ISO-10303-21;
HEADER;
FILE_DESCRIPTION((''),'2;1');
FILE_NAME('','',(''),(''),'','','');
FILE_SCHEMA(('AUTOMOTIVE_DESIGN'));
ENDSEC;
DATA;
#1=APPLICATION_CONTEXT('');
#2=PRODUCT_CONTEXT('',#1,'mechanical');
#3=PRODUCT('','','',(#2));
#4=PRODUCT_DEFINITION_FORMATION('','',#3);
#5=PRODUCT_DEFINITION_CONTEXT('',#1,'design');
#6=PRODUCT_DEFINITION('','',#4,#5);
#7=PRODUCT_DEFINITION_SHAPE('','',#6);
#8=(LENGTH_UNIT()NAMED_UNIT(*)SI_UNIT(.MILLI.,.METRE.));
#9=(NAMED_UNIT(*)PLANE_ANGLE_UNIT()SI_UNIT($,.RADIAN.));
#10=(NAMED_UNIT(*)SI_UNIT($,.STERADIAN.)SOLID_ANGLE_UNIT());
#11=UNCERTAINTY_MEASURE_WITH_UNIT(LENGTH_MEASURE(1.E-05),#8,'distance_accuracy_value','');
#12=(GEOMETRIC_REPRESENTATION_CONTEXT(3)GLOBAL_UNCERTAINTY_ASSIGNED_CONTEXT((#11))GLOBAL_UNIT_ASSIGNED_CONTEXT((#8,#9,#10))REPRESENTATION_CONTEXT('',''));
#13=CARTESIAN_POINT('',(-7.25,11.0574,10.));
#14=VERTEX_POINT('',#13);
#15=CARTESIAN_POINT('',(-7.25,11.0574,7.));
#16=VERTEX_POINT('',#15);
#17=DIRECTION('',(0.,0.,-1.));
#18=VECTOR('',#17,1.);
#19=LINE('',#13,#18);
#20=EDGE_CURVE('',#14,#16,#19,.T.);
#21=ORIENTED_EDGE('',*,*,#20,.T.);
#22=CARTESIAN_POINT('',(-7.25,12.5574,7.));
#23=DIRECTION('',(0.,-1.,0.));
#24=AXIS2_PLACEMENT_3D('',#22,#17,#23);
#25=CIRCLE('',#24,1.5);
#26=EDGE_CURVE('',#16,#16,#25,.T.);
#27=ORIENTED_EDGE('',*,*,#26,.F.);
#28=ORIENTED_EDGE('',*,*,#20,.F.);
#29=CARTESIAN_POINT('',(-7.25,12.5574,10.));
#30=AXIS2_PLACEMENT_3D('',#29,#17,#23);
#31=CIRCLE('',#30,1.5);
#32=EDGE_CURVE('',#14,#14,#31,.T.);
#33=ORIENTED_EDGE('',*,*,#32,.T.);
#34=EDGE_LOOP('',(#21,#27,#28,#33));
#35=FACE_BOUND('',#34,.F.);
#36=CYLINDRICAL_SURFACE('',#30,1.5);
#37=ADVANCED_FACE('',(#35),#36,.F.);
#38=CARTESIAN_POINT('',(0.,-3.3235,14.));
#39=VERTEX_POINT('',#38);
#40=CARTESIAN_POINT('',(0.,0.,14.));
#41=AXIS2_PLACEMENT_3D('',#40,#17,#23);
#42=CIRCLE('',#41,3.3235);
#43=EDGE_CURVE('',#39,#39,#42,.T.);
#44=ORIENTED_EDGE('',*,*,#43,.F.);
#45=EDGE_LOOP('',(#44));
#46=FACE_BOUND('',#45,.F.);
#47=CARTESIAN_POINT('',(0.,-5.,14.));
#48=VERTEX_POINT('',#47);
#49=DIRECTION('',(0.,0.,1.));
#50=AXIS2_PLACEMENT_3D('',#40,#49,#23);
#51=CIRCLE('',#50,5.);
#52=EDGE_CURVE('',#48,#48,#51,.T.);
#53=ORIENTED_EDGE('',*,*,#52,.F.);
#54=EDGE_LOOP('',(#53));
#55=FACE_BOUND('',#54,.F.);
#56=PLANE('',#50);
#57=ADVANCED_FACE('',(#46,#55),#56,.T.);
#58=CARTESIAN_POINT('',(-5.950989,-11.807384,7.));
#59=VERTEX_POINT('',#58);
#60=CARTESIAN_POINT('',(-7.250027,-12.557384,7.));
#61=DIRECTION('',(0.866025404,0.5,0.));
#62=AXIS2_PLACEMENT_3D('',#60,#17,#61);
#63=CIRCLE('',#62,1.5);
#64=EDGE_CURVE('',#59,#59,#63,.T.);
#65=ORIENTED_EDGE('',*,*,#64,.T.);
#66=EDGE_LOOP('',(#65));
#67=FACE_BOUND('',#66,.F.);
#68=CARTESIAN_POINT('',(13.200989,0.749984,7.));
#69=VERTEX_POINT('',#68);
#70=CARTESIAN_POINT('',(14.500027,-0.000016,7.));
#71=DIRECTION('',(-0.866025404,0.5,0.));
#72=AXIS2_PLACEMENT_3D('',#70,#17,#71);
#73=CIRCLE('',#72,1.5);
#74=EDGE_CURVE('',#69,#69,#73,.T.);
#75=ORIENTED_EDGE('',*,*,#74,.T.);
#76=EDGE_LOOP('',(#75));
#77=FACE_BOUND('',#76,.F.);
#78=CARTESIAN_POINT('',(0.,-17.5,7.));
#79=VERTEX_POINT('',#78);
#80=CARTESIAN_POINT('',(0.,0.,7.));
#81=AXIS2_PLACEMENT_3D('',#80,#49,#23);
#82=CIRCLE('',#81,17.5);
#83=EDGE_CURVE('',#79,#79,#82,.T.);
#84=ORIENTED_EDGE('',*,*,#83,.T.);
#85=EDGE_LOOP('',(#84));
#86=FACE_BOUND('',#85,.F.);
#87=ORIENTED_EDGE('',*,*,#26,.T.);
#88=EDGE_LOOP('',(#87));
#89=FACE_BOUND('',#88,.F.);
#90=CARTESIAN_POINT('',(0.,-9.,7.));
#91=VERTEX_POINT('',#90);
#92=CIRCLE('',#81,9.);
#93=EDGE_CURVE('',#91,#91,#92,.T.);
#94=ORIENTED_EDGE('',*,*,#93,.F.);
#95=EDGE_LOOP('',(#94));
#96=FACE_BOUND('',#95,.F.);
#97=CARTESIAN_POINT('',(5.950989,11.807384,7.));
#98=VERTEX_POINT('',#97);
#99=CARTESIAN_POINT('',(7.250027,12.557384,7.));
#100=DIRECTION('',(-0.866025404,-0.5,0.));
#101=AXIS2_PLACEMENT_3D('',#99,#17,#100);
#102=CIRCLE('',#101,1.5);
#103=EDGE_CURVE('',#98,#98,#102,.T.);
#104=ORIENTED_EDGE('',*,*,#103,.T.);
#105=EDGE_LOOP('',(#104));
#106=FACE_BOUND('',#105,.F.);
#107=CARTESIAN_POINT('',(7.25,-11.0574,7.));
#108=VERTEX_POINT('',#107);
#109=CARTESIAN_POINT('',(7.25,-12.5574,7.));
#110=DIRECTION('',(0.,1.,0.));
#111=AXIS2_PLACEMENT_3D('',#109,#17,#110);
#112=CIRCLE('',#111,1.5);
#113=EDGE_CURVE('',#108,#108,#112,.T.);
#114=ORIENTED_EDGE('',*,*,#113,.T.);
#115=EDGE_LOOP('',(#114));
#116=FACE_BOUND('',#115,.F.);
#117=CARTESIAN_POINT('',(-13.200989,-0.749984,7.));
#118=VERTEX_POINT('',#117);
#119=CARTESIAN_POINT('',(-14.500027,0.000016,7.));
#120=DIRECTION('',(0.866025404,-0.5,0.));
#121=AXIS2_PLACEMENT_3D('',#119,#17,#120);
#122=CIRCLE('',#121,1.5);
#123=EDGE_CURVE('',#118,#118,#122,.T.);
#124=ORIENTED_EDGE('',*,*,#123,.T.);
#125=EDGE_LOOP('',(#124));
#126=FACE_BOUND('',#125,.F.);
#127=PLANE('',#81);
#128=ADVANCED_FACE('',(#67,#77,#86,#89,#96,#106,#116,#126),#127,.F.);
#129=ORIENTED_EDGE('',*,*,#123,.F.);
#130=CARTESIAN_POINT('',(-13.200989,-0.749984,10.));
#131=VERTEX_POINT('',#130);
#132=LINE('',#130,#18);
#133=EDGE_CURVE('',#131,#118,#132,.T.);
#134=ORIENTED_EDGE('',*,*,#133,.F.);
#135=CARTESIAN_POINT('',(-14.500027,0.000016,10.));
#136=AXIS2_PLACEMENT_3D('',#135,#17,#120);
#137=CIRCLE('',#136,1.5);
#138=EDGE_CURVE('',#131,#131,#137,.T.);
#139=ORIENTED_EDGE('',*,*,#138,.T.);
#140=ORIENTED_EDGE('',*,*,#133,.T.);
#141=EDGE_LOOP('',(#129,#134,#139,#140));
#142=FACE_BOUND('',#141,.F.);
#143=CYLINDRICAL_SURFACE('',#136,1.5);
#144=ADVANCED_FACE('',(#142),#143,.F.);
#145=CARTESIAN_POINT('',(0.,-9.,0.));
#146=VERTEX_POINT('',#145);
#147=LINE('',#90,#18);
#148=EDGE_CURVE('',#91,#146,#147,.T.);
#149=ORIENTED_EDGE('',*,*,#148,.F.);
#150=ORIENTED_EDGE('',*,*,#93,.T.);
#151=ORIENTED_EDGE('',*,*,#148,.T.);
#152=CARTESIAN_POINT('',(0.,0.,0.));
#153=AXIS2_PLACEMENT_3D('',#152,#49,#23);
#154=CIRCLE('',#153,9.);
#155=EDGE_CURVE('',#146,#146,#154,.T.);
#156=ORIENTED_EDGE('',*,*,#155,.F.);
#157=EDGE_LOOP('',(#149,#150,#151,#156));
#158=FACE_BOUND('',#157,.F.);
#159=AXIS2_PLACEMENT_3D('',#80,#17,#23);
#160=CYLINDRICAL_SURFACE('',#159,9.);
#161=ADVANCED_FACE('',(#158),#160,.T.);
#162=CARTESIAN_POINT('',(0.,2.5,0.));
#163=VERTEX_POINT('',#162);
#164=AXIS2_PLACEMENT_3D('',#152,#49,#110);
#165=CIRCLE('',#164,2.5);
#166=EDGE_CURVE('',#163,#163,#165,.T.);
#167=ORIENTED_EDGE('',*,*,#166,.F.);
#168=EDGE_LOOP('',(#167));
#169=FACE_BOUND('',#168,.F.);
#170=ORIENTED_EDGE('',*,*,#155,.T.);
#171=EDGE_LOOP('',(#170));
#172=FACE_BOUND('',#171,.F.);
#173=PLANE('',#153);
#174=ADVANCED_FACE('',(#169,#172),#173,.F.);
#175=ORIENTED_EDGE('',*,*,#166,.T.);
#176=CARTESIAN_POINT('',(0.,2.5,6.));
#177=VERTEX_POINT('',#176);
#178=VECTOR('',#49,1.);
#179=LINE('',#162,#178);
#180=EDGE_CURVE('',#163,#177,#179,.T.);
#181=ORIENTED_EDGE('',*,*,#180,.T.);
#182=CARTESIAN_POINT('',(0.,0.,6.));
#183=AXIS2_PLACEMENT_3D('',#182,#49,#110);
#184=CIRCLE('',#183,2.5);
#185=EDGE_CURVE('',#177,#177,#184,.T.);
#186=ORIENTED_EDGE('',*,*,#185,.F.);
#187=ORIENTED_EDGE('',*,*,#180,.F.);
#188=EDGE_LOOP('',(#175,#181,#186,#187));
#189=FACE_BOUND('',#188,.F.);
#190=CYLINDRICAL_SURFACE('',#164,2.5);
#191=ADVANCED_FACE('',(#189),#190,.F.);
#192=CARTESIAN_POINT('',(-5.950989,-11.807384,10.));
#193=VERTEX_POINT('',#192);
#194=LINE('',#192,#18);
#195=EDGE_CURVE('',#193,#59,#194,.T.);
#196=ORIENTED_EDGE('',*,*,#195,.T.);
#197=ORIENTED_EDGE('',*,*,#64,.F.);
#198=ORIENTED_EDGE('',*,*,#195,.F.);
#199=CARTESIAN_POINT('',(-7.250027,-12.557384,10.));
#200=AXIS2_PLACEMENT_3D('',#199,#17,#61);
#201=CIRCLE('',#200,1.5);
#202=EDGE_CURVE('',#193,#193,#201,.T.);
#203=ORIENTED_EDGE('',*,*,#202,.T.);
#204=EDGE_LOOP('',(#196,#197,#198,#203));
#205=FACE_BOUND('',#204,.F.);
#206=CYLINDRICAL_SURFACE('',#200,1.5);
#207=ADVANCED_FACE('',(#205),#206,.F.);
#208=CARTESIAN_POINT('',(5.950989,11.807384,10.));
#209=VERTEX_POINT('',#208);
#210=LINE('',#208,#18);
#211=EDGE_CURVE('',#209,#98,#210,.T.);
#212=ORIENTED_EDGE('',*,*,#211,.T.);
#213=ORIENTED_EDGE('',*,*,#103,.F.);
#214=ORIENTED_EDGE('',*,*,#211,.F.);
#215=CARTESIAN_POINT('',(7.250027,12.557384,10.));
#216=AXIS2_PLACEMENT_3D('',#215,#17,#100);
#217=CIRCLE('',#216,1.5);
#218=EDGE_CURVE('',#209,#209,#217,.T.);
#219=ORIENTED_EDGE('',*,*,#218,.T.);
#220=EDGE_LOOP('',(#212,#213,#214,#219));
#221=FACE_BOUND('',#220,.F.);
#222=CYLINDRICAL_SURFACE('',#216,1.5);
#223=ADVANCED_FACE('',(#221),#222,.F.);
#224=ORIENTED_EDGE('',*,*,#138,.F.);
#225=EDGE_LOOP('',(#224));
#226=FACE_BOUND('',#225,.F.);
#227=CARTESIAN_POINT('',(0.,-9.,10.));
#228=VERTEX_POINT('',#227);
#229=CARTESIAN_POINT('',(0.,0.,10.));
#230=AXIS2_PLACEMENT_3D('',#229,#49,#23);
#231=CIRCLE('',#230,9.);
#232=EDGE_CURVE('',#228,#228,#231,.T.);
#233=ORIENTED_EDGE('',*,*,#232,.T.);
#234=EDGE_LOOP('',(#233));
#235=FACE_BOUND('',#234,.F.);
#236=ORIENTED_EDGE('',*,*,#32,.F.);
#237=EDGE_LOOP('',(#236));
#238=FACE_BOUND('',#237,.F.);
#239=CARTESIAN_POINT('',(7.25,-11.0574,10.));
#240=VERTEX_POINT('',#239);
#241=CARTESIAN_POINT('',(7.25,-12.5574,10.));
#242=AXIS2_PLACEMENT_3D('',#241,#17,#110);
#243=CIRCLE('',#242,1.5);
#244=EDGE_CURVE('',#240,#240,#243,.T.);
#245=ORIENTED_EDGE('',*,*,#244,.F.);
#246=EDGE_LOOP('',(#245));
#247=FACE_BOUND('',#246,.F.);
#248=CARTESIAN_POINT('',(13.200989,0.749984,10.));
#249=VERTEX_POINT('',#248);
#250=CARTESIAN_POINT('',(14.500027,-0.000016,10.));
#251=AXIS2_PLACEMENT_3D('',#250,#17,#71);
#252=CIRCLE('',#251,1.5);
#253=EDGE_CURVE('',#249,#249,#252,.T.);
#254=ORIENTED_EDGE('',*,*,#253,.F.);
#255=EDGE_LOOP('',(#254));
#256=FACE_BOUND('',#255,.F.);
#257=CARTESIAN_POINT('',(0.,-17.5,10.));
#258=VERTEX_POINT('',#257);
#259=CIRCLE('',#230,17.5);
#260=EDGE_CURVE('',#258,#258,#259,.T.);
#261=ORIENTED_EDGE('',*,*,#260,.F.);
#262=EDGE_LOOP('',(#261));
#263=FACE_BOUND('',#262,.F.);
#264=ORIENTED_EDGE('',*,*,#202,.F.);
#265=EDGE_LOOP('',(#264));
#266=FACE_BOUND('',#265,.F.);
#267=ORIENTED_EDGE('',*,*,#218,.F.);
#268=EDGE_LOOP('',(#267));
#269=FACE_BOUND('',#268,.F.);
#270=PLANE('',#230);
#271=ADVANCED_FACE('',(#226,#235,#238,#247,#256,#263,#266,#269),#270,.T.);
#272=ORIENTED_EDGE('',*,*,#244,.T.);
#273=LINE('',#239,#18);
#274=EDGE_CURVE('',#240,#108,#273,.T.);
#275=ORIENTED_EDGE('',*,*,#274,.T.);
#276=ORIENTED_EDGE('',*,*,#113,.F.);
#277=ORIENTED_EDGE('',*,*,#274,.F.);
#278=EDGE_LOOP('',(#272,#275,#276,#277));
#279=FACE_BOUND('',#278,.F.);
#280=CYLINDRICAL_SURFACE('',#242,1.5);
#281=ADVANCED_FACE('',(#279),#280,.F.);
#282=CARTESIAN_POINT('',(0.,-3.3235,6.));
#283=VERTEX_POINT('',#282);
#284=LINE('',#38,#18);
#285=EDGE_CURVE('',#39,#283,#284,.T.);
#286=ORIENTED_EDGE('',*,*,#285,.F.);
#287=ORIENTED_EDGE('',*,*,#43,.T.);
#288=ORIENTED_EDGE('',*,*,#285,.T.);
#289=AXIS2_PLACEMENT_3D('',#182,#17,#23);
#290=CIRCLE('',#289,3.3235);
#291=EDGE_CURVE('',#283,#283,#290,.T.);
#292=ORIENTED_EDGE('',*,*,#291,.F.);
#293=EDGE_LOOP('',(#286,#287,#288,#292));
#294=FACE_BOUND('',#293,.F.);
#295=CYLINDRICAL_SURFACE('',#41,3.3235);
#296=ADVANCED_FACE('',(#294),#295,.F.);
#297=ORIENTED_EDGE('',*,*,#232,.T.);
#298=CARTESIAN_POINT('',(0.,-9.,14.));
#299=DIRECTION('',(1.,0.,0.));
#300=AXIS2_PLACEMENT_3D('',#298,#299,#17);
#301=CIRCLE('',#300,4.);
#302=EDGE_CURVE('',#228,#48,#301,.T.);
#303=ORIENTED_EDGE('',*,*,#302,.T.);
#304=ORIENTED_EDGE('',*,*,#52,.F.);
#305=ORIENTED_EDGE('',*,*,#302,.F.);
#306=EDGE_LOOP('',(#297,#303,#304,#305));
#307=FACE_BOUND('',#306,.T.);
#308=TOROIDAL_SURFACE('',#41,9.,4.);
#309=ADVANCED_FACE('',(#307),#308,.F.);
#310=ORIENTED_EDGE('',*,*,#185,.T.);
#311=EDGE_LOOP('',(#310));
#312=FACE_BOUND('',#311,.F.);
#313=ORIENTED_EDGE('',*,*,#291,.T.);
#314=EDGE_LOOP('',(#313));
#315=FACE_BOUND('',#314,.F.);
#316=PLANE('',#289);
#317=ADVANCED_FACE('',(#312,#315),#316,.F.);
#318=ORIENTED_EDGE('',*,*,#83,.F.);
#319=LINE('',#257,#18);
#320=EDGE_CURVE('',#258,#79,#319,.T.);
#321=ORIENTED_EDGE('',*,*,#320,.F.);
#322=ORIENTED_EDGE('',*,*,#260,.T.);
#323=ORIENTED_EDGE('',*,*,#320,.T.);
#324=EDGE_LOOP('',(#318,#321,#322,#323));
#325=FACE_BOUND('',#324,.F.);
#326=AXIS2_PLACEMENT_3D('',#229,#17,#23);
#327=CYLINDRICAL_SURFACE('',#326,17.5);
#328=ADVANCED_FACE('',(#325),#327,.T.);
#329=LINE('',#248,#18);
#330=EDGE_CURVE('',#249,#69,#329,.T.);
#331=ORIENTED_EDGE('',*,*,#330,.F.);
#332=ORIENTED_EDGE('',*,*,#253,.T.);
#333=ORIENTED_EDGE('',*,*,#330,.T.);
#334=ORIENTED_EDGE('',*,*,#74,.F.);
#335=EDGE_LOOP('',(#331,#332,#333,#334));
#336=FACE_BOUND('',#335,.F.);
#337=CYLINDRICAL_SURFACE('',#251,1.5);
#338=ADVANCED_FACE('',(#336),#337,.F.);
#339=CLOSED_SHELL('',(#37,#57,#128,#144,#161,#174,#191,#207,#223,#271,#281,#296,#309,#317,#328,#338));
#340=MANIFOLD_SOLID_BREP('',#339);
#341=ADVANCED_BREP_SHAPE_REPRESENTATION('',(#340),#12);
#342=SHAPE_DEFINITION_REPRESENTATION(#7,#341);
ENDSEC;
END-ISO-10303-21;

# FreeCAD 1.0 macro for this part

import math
import FreeCAD as App
import Part
import Sketcher

doc = App.newDocument("Part")
body = doc.addObject("PartDesign::Body", "Body")

# Sketch on YZ plane
sketch1 = body.newObject("Sketcher::SketchObject", "Sketch")
sketch1.AttachmentSupport = (doc.getObject("YZ_Plane"), [""])
sketch1.MapMode = "FlatFace"
sketch1.addGeometry(Part.LineSegment(App.Vector(-9, 0, 0), App.Vector(0, 0, 0)), False)
sketch1.addGeometry(Part.LineSegment(App.Vector(0, 0, 0), App.Vector(0, 14, 0)), False)
sketch1.addGeometry(Part.LineSegment(App.Vector(0, 14, 0), App.Vector(-5, 14, 0)), False)
sketch1.addGeometry(Part.ArcOfCircle(Part.Circle(App.Vector(-9, 14, 0), App.Vector(0, 0, 1), 4), math.radians(-90), math.radians(0)), False)
sketch1.addGeometry(Part.LineSegment(App.Vector(-9, 10, 0), App.Vector(-17.5, 10, 0)), False)
sketch1.addGeometry(Part.LineSegment(App.Vector(-17.5, 10, 0), App.Vector(-17.5, 7, 0)), False)
sketch1.addGeometry(Part.LineSegment(App.Vector(-17.5, 7, 0), App.Vector(-9, 7, 0)), False)
sketch1.addGeometry(Part.LineSegment(App.Vector(-9, 7, 0), App.Vector(-9, 0, 0)), False)
sketch1.addConstraint(Sketcher.Constraint("Coincident", 0, 2, 1, 1))
sketch1.addConstraint(Sketcher.Constraint("Coincident", 1, 2, 2, 1))
sketch1.addConstraint(Sketcher.Constraint("Coincident", 2, 2, 3, 2))
sketch1.addConstraint(Sketcher.Constraint("Tangent", 3, 1, 4, 1))
sketch1.addConstraint(Sketcher.Constraint("Coincident", 4, 2, 5, 1))
sketch1.addConstraint(Sketcher.Constraint("Coincident", 5, 2, 6, 1))
sketch1.addConstraint(Sketcher.Constraint("Coincident", 6, 2, 7, 1))
sketch1.addConstraint(Sketcher.Constraint("Coincident", 7, 2, 0, 1))
sketch1.addConstraint(Sketcher.Constraint("Horizontal", 0))
sketch1.addConstraint(Sketcher.Constraint("Vertical", 1))
sketch1.addConstraint(Sketcher.Constraint("Horizontal", 2))
sketch1.addConstraint(Sketcher.Constraint("Horizontal", 4))
sketch1.addConstraint(Sketcher.Constraint("Vertical", 5))
sketch1.addConstraint(Sketcher.Constraint("Horizontal", 6))
sketch1.addConstraint(Sketcher.Constraint("Vertical", 7))
sketch1.addConstraint(Sketcher.Constraint("Coincident", 0, 2, -1, 1))
sketch1.addConstraint(Sketcher.Constraint("Horizontal", 3, 3, 1, 2))
sketch1.addConstraint(Sketcher.Constraint("Vertical", 3, 1, 6, 2))
sketch1.addConstraint(Sketcher.Constraint("Radius", 3, 4.0))
sketch1.addConstraint(Sketcher.Constraint("DistanceY", 5, 2, 5, 1, 3.0))
sketch1.addConstraint(Sketcher.Constraint("DistanceY", 7, 2, 7, 1, 7.0))
sketch1.addConstraint(Sketcher.Constraint("DistanceX", 0, 1, 0, 2, 9.0))
sketch1.addConstraint(Sketcher.Constraint("DistanceX", 4, 2, 4, 1, 8.5))
revolution = body.newObject("PartDesign::Revolution", "Revolution")
revolution.Profile = sketch1
revolution.ReferenceAxis = (sketch1, ["V_Axis"])
revolution.Angle = 360

# Sketch on XY plane
sketch2 = body.newObject("Sketcher::SketchObject", "Sketch001")
sketch2.AttachmentSupport = (doc.getObject("XY_Plane"), [""])
sketch2.MapMode = "FlatFace"
sketch2.AttachmentOffset = App.Placement(App.Vector(0, 0, 14), App.Rotation())
sketch2.addGeometry(Part.Circle(App.Vector(0, 0, 0), App.Vector(0, 0, 1), 3.3), False)
sketch2.addConstraint(Sketcher.Constraint("Coincident", 0, 3, -1, 1))
sketch2.addConstraint(Sketcher.Constraint("Diameter", 0, 6.647))
doc.recompute()
hole = body.newObject("PartDesign::Hole", "Hole")
hole.Profile = sketch2
hole.ThreadType = "None"
hole.Diameter = 6.647
hole.DepthType = "Dimension"
hole.Depth = 8
hole.DrillPoint = "Flat"

# Sketch on XY plane
sketch3 = body.newObject("Sketcher::SketchObject", "Sketch002")
sketch3.AttachmentSupport = (doc.getObject("XY_Plane"), [""])
sketch3.MapMode = "FlatFace"
sketch3.addGeometry(Part.Circle(App.Vector(0, 0, 0), App.Vector(0, 0, 1), 2.5), False)
sketch3.addConstraint(Sketcher.Constraint("Coincident", 0, 3, -1, 1))
sketch3.addConstraint(Sketcher.Constraint("Diameter", 0, 5.0))
doc.recompute()
hole2 = body.newObject("PartDesign::Hole", "Hole001")
hole2.Profile = sketch3
hole2.ThreadType = "None"
hole2.Diameter = 5
hole2.DepthType = "Dimension"
hole2.Depth = 6
hole2.DrillPoint = "Flat"
hole2.Reversed = True

# Sketch on XY plane
sketch4 = body.newObject("Sketcher::SketchObject", "Sketch003")
sketch4.AttachmentSupport = (doc.getObject("XY_Plane"), [""])
sketch4.MapMode = "FlatFace"
sketch4.AttachmentOffset = App.Placement(App.Vector(0, 0, 10), App.Rotation())
sketch4.addGeometry(Part.Circle(App.Vector(-7.2, 12.6, 0), App.Vector(0, 0, 1), 1.5), False)
sketch4.addConstraint(Sketcher.Constraint("Diameter", 0, 3.0))
sketch4.addConstraint(Sketcher.Constraint("DistanceX", 0, 3, -1, 1, 7.25))
sketch4.addConstraint(Sketcher.Constraint("DistanceY", -1, 1, 0, 3, 12.5574))
doc.recompute()
hole3 = body.newObject("PartDesign::Hole", "Hole002")
hole3.Profile = sketch4
hole3.ThreadType = "None"
hole3.Diameter = 3
hole3.DepthType = "Dimension"
hole3.Depth = 3
hole3.DrillPoint = "Flat"
doc.recompute()

polarpattern = body.newObject("PartDesign::PolarPattern", "PolarPattern")
polarpattern.Originals = [hole3]
polarpattern.Axis = (doc.getObject("Z_Axis"), [""])
polarpattern.Angle = 360
polarpattern.Occurrences = 6
body.Tip = polarpattern

doc.recompute()
